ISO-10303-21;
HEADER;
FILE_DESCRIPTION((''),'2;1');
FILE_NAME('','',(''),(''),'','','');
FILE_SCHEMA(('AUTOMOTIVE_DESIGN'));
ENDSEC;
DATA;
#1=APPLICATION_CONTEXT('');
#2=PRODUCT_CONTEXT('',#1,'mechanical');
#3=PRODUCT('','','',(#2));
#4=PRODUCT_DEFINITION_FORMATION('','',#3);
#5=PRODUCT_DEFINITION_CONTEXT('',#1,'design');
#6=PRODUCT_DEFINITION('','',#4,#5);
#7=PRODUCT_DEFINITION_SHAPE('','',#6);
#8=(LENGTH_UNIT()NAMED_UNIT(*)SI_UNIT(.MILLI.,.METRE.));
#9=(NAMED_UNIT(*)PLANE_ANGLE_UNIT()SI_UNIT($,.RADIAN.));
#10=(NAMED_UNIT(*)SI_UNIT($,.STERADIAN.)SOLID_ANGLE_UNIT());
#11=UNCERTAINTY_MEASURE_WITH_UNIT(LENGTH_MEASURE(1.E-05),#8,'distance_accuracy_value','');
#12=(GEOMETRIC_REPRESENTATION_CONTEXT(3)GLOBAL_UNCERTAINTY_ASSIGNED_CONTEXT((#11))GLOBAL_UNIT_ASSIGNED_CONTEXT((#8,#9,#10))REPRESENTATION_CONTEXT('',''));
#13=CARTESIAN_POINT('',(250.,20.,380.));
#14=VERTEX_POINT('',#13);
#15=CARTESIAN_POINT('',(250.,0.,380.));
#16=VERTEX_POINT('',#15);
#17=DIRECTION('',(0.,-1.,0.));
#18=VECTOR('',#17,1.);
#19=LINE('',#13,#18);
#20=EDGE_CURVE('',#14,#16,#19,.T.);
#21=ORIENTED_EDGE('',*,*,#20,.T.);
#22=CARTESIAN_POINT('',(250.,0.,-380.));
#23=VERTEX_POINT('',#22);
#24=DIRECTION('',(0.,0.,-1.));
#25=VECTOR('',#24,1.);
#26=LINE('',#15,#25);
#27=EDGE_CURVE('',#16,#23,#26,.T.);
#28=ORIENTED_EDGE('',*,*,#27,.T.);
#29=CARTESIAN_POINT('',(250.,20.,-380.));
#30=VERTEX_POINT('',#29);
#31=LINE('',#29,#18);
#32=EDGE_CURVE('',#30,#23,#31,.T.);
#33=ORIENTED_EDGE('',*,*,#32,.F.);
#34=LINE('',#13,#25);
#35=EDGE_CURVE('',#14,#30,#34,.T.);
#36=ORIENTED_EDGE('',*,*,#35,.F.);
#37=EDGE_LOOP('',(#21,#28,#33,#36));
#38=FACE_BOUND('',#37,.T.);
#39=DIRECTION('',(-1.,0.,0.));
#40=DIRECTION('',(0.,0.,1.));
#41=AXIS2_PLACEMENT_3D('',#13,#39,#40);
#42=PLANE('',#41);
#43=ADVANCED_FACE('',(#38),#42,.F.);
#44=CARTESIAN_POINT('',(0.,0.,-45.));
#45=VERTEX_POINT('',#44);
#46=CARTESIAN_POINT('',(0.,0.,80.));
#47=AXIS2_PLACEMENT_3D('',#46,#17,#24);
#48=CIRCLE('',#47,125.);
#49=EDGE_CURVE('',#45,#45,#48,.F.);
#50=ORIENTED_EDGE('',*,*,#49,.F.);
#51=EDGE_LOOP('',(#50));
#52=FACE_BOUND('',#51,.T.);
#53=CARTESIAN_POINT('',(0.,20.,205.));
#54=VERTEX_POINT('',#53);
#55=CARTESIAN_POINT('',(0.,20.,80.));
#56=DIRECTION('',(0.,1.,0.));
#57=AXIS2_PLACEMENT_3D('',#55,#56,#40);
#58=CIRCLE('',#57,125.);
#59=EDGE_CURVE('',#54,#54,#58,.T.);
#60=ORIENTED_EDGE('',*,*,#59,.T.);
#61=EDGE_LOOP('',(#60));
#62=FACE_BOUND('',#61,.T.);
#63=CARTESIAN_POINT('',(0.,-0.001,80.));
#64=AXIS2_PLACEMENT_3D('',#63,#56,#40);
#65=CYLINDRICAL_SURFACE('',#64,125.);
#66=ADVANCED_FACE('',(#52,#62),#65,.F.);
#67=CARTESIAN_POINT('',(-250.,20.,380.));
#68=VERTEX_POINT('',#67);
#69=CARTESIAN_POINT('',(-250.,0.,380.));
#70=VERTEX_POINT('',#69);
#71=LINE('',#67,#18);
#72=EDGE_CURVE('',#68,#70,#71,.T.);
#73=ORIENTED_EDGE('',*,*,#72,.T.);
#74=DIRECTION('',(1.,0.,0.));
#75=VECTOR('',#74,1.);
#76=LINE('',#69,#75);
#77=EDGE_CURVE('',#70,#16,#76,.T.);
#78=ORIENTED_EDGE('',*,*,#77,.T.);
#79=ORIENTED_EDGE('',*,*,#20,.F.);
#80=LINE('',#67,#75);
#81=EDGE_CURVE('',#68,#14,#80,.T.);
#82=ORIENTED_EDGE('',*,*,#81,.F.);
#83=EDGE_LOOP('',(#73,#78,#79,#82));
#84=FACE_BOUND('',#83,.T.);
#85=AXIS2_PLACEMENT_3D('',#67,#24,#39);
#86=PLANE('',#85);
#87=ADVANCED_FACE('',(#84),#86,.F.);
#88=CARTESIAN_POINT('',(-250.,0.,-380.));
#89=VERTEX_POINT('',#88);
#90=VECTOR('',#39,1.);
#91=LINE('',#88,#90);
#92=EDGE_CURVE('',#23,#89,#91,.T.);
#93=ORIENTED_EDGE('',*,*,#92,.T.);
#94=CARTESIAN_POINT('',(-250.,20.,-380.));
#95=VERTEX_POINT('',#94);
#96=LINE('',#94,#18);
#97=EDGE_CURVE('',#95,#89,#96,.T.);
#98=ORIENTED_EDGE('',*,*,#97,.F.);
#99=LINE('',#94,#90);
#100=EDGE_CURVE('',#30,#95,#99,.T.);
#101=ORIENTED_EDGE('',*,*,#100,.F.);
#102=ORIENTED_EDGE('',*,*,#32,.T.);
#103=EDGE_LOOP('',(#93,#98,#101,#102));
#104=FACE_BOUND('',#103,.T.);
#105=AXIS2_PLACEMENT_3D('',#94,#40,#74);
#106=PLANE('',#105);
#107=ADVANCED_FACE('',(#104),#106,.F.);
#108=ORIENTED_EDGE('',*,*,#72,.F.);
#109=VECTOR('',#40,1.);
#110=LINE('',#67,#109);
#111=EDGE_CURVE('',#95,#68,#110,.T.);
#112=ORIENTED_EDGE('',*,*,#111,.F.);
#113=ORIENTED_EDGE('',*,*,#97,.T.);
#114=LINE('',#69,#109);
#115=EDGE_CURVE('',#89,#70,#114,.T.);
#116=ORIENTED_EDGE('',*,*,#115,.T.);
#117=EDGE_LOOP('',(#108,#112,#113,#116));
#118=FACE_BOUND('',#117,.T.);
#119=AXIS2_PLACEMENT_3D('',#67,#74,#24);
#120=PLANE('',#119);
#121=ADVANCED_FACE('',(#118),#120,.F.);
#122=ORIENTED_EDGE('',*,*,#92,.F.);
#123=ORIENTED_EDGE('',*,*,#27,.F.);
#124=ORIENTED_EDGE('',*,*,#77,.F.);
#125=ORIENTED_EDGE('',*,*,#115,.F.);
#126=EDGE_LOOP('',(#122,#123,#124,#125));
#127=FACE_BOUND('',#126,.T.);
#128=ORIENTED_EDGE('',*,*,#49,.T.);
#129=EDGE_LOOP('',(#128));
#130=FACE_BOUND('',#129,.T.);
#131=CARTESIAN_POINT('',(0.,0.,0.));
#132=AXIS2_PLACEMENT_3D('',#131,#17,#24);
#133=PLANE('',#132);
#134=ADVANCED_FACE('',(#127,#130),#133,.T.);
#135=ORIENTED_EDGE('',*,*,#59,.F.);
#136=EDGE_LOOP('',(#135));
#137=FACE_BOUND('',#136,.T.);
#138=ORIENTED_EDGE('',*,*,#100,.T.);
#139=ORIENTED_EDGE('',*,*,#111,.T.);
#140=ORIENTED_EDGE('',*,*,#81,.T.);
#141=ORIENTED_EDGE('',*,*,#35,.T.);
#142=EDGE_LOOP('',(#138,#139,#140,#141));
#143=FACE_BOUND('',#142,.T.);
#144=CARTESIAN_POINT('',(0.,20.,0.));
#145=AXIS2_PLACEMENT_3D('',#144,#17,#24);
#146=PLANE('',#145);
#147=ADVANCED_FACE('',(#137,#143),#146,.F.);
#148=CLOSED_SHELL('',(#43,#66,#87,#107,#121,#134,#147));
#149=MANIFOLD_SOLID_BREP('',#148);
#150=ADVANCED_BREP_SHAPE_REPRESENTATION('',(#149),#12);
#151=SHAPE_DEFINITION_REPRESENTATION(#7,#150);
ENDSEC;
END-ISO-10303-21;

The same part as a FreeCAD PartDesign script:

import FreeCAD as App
import Part
import Sketcher
Q = App.Units.Quantity

doc = App.newDocument("Part")
params = doc.addObject("Spreadsheet::Sheet", "Params")
for row, (alias, value) in enumerate([
    ("sketch1_width", "500 mm"),
    ("sketch1_height", "760 mm"),
    ("pad1_length", "20 mm"),
    ("sketch2_diameter", "250 mm"),
], start=1):
    params.set(f"A{row}", alias)
    params.set(f"B{row}", "=" + value)
    params.setAlias(f"B{row}", alias)

body = doc.addObject("PartDesign::Body", "Body")

# Sketch on XZ plane
sketch1 = doc.addObject("Sketcher::SketchObject", "Sketch")
body.addObject(sketch1)
sketch1.AttachmentSupport = (doc.XZ_Plane, [""])
sketch1.MapMode = "FlatFace"
sketch1.addGeometry(Part.LineSegment(App.Vector(-250, -380, 0), App.Vector(-250, 380, 0)), False)
sketch1.addGeometry(Part.LineSegment(App.Vector(-250, 380, 0), App.Vector(250, 380, 0)), False)
sketch1.addGeometry(Part.LineSegment(App.Vector(250, 380, 0), App.Vector(250, -380, 0)), False)
sketch1.addGeometry(Part.LineSegment(App.Vector(250, -380, 0), App.Vector(-250, -380, 0)), False)
sketch1.addConstraint(Sketcher.Constraint("Coincident", 0, 2, 1, 1))
sketch1.addConstraint(Sketcher.Constraint("Coincident", 1, 2, 2, 1))
sketch1.addConstraint(Sketcher.Constraint("Coincident", 2, 2, 3, 1))
sketch1.addConstraint(Sketcher.Constraint("Coincident", 3, 2, 0, 1))
sketch1.addConstraint(Sketcher.Constraint("Vertical", 0))
sketch1.addConstraint(Sketcher.Constraint("Horizontal", 1))
sketch1.addConstraint(Sketcher.Constraint("Vertical", 2))
sketch1.addConstraint(Sketcher.Constraint("Horizontal", 3))
sketch1.addConstraint(Sketcher.Constraint("Symmetric", 0, 2, 2, 2, -1, 1))
sketch1.addConstraint(Sketcher.Constraint("DistanceX", 1, 1, 1, 2, Q("500 mm")))
sketch1.addConstraint(Sketcher.Constraint("DistanceY", 0, 1, 0, 2, Q("760 mm")))
sketch1.setExpression("Constraints[9]", "Params.sketch1_width")
sketch1.setExpression("Constraints[10]", "Params.sketch1_height")
pad1 = doc.addObject("PartDesign::Pad", "Pad")
body.addObject(pad1)
pad1.Profile = sketch1
pad1.setExpression("Length", "Params.pad1_length")
pad1.Reversed = True

# Sketch on XZ plane
sketch2 = doc.addObject("Sketcher::SketchObject", "Sketch001")
body.addObject(sketch2)
sketch2.AttachmentSupport = (doc.XZ_Plane, [""])
sketch2.MapMode = "FlatFace"
sketch2.AttachmentOffset = App.Placement(App.Vector(0, 0, -20), App.Rotation())
sketch2.addGeometry(Part.Circle(App.Vector(0, 80, 0), App.Vector(0, 0, 1), 125), False)
sketch2.addConstraint(Sketcher.Constraint("PointOnObject", 0, 3, -2))
sketch2.addConstraint(Sketcher.Constraint("Diameter", 0, Q("250 mm")))
sketch2.addConstraint(Sketcher.Constraint("DistanceY", -1, 1, 0, 3, Q("80 mm")))
sketch2.setExpression("Constraints[1]", "Params.sketch2_diameter")
pocket1 = doc.addObject("PartDesign::Pocket", "Pocket")
body.addObject(pocket1)
pocket1.Profile = sketch2
pocket1.Type = "UpToFirst"
pocket1.Reversed = True

doc.recompute()
